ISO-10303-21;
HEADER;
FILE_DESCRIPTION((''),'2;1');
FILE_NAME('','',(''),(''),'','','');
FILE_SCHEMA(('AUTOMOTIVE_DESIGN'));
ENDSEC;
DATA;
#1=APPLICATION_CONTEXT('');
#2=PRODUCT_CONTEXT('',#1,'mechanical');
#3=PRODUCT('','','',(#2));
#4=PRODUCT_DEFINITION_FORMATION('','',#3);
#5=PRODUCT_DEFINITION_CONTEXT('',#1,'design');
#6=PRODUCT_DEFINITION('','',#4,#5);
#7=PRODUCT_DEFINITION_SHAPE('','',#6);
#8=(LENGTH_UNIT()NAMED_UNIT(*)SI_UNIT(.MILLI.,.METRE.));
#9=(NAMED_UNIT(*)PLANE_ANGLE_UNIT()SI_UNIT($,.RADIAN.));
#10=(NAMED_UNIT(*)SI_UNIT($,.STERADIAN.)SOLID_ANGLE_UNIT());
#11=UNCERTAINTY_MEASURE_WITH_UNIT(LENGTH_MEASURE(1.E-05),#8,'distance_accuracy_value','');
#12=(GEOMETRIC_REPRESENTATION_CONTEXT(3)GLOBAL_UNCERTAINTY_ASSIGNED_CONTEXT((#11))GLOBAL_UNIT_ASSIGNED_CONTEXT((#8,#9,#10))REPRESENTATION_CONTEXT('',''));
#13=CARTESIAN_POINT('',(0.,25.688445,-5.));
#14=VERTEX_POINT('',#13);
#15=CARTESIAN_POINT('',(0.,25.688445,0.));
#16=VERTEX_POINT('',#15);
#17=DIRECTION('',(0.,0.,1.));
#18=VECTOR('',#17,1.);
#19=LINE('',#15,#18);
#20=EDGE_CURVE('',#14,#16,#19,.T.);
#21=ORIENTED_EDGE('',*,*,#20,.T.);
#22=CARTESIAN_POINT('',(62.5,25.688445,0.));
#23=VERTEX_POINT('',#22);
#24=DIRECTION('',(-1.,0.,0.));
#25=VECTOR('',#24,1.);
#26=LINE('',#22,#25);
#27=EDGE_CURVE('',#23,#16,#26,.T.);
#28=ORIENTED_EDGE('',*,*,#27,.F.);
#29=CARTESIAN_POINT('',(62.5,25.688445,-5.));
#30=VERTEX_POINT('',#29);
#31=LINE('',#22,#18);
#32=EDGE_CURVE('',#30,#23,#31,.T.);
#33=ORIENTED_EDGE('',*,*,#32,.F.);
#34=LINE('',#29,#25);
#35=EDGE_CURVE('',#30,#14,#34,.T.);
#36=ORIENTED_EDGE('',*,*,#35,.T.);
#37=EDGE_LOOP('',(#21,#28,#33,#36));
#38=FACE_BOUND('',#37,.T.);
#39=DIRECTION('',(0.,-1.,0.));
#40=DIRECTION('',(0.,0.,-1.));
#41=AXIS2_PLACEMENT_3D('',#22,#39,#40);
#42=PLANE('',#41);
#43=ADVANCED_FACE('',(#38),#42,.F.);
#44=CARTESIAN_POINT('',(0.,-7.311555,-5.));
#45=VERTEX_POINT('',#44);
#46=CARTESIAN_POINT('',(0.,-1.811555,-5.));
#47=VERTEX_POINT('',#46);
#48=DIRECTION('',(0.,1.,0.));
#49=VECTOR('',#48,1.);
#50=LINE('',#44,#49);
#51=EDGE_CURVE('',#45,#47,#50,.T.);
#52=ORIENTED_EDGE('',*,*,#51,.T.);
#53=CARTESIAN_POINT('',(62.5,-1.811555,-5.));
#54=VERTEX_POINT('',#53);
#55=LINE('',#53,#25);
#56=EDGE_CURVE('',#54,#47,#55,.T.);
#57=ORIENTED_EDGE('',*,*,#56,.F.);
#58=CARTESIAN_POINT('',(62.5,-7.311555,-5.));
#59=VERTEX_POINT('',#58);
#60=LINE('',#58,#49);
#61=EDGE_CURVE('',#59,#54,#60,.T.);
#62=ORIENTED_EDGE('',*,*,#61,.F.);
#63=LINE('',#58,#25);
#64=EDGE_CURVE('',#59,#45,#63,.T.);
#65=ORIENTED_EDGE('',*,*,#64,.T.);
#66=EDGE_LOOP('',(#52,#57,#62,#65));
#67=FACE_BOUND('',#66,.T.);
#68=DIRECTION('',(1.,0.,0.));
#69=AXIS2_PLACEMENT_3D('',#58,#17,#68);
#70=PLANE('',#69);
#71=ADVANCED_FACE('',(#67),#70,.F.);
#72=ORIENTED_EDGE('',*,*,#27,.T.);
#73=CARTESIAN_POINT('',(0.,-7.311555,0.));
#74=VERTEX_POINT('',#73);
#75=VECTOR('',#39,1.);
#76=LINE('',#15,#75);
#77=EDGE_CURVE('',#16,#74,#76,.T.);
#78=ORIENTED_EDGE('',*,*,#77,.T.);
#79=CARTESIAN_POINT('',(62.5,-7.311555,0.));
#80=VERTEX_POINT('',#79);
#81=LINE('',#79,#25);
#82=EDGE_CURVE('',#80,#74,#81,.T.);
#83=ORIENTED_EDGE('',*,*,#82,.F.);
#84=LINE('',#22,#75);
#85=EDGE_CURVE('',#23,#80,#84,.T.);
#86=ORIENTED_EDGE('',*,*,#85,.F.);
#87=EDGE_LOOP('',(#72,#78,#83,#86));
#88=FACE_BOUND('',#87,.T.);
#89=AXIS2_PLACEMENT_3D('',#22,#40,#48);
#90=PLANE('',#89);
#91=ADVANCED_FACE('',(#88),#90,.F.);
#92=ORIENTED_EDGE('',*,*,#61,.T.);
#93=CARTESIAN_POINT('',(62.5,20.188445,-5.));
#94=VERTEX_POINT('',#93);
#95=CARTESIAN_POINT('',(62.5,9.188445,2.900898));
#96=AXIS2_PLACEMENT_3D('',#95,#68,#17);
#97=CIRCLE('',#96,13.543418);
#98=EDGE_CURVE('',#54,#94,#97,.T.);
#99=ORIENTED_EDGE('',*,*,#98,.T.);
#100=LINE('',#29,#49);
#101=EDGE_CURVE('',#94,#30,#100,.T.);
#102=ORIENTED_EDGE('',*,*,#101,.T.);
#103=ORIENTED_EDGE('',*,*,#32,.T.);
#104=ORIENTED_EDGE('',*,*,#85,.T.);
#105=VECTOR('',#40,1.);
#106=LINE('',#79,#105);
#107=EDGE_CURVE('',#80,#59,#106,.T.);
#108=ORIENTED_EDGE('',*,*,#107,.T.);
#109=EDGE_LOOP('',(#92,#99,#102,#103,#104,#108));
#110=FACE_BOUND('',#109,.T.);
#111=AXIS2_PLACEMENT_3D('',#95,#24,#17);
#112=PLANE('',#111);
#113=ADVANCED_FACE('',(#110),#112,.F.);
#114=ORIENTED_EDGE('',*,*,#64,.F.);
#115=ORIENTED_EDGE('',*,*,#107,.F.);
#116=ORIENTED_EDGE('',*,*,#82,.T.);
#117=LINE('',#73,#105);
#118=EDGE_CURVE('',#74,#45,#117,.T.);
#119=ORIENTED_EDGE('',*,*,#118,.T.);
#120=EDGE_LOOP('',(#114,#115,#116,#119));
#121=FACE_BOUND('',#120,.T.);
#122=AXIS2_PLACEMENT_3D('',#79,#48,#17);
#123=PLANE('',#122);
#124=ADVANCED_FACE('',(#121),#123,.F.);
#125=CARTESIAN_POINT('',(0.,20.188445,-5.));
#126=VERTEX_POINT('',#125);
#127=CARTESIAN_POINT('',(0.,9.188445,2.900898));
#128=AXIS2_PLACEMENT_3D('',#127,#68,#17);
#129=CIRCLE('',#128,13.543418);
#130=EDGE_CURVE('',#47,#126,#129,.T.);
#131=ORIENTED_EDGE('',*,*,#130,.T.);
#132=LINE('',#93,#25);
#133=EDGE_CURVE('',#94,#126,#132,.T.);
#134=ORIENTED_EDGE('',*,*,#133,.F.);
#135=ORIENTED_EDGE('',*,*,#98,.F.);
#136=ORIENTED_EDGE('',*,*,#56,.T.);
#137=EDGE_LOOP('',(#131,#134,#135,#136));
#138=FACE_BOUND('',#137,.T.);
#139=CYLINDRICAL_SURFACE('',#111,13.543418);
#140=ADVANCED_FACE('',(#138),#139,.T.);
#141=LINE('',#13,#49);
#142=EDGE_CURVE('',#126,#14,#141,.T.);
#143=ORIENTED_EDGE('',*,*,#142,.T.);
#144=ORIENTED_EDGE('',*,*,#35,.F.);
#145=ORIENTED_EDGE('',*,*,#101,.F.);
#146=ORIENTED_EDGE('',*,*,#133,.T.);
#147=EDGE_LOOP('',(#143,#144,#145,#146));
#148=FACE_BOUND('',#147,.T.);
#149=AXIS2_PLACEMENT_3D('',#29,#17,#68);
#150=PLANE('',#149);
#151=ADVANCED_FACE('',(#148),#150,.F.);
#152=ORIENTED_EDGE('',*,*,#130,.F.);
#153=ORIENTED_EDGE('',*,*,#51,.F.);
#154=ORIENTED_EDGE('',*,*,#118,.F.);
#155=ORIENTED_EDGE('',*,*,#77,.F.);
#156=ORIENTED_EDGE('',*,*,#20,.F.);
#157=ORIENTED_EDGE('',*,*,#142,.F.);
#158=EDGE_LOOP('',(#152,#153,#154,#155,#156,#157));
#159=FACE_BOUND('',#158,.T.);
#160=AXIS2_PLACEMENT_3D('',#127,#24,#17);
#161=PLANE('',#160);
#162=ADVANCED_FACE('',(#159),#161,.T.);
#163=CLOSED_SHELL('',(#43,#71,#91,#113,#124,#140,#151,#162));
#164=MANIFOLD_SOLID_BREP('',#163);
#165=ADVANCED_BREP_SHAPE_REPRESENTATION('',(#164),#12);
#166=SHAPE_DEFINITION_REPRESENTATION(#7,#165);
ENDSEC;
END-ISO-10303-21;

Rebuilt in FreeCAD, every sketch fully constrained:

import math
import FreeCAD as App
import Part
import Sketcher
from FreeCAD import Vector
Q = App.Units.Quantity

doc = App.newDocument("Part")
body = doc.addObject("PartDesign::Body", "Body")

# Sketch on YZ plane
sketch1 = body.newObject("Sketcher::SketchObject", "Sketch")
sketch1.AttachmentSupport = (doc.getObject("YZ_Plane"), [""])
sketch1.MapMode = "FlatFace"
sketch1.addGeometry(Part.LineSegment(Vector(26, 0, 0), Vector(-7, 0, 0)), False)
sketch1.addGeometry(Part.LineSegment(Vector(-7, 0, 0), Vector(-7, -5, 0)), False)
sketch1.addGeometry(Part.LineSegment(Vector(-7, -5, 0), Vector(-2, -5, 0)), False)
sketch1.addGeometry(Part.ArcOfCircle(Part.Circle(Vector(9, 3, 0), Vector(0, 0, 1), 14), math.radians(-144), math.radians(-36)), False)
sketch1.addGeometry(Part.LineSegment(Vector(20, -5, 0), Vector(26, -5, 0)), False)
sketch1.addGeometry(Part.LineSegment(Vector(26, -5, 0), Vector(26, 0, 0)), False)
sketch1.addConstraint(Sketcher.Constraint("Coincident", 0, 2, 1, 1))
sketch1.addConstraint(Sketcher.Constraint("Coincident", 1, 2, 2, 1))
sketch1.addConstraint(Sketcher.Constraint("Coincident", 2, 2, 3, 1))
sketch1.addConstraint(Sketcher.Constraint("Coincident", 3, 2, 4, 1))
sketch1.addConstraint(Sketcher.Constraint("Coincident", 4, 2, 5, 1))
sketch1.addConstraint(Sketcher.Constraint("Coincident", 5, 2, 0, 1))
sketch1.addConstraint(Sketcher.Constraint("Horizontal", 0))
sketch1.addConstraint(Sketcher.Constraint("Vertical", 1))
sketch1.addConstraint(Sketcher.Constraint("Horizontal", 2))
sketch1.addConstraint(Sketcher.Constraint("Horizontal", 4))
sketch1.addConstraint(Sketcher.Constraint("Vertical", 5))
sketch1.addConstraint(Sketcher.Constraint("PointOnObject", 0, 2, -1))
sketch1.addConstraint(Sketcher.Constraint("Horizontal", 2, 2, 3, 2))
sketch1.addConstraint(Sketcher.Constraint("Equal", 2, 4))
sketch1.addConstraint(Sketcher.Constraint("DistanceX", 0, 2, 0, 1, Q("33 mm")))
sketch1.addConstraint(Sketcher.Constraint("DistanceY", 1, 2, 1, 1, Q("5 mm")))
sketch1.addConstraint(Sketcher.Constraint("DistanceX", 2, 1, 2, 2, Q("5.5 mm")))
sketch1.addConstraint(Sketcher.Constraint("Radius", 3, Q("13.543418 mm")))
sketch1.addConstraint(Sketcher.Constraint("DistanceX", -1, 1, 3, 3, Q("9.188445 mm")))
pad1 = body.newObject("PartDesign::Pad", "Pad")
pad1.Profile = sketch1
pad1.Length = 62.5

doc.recompute()
